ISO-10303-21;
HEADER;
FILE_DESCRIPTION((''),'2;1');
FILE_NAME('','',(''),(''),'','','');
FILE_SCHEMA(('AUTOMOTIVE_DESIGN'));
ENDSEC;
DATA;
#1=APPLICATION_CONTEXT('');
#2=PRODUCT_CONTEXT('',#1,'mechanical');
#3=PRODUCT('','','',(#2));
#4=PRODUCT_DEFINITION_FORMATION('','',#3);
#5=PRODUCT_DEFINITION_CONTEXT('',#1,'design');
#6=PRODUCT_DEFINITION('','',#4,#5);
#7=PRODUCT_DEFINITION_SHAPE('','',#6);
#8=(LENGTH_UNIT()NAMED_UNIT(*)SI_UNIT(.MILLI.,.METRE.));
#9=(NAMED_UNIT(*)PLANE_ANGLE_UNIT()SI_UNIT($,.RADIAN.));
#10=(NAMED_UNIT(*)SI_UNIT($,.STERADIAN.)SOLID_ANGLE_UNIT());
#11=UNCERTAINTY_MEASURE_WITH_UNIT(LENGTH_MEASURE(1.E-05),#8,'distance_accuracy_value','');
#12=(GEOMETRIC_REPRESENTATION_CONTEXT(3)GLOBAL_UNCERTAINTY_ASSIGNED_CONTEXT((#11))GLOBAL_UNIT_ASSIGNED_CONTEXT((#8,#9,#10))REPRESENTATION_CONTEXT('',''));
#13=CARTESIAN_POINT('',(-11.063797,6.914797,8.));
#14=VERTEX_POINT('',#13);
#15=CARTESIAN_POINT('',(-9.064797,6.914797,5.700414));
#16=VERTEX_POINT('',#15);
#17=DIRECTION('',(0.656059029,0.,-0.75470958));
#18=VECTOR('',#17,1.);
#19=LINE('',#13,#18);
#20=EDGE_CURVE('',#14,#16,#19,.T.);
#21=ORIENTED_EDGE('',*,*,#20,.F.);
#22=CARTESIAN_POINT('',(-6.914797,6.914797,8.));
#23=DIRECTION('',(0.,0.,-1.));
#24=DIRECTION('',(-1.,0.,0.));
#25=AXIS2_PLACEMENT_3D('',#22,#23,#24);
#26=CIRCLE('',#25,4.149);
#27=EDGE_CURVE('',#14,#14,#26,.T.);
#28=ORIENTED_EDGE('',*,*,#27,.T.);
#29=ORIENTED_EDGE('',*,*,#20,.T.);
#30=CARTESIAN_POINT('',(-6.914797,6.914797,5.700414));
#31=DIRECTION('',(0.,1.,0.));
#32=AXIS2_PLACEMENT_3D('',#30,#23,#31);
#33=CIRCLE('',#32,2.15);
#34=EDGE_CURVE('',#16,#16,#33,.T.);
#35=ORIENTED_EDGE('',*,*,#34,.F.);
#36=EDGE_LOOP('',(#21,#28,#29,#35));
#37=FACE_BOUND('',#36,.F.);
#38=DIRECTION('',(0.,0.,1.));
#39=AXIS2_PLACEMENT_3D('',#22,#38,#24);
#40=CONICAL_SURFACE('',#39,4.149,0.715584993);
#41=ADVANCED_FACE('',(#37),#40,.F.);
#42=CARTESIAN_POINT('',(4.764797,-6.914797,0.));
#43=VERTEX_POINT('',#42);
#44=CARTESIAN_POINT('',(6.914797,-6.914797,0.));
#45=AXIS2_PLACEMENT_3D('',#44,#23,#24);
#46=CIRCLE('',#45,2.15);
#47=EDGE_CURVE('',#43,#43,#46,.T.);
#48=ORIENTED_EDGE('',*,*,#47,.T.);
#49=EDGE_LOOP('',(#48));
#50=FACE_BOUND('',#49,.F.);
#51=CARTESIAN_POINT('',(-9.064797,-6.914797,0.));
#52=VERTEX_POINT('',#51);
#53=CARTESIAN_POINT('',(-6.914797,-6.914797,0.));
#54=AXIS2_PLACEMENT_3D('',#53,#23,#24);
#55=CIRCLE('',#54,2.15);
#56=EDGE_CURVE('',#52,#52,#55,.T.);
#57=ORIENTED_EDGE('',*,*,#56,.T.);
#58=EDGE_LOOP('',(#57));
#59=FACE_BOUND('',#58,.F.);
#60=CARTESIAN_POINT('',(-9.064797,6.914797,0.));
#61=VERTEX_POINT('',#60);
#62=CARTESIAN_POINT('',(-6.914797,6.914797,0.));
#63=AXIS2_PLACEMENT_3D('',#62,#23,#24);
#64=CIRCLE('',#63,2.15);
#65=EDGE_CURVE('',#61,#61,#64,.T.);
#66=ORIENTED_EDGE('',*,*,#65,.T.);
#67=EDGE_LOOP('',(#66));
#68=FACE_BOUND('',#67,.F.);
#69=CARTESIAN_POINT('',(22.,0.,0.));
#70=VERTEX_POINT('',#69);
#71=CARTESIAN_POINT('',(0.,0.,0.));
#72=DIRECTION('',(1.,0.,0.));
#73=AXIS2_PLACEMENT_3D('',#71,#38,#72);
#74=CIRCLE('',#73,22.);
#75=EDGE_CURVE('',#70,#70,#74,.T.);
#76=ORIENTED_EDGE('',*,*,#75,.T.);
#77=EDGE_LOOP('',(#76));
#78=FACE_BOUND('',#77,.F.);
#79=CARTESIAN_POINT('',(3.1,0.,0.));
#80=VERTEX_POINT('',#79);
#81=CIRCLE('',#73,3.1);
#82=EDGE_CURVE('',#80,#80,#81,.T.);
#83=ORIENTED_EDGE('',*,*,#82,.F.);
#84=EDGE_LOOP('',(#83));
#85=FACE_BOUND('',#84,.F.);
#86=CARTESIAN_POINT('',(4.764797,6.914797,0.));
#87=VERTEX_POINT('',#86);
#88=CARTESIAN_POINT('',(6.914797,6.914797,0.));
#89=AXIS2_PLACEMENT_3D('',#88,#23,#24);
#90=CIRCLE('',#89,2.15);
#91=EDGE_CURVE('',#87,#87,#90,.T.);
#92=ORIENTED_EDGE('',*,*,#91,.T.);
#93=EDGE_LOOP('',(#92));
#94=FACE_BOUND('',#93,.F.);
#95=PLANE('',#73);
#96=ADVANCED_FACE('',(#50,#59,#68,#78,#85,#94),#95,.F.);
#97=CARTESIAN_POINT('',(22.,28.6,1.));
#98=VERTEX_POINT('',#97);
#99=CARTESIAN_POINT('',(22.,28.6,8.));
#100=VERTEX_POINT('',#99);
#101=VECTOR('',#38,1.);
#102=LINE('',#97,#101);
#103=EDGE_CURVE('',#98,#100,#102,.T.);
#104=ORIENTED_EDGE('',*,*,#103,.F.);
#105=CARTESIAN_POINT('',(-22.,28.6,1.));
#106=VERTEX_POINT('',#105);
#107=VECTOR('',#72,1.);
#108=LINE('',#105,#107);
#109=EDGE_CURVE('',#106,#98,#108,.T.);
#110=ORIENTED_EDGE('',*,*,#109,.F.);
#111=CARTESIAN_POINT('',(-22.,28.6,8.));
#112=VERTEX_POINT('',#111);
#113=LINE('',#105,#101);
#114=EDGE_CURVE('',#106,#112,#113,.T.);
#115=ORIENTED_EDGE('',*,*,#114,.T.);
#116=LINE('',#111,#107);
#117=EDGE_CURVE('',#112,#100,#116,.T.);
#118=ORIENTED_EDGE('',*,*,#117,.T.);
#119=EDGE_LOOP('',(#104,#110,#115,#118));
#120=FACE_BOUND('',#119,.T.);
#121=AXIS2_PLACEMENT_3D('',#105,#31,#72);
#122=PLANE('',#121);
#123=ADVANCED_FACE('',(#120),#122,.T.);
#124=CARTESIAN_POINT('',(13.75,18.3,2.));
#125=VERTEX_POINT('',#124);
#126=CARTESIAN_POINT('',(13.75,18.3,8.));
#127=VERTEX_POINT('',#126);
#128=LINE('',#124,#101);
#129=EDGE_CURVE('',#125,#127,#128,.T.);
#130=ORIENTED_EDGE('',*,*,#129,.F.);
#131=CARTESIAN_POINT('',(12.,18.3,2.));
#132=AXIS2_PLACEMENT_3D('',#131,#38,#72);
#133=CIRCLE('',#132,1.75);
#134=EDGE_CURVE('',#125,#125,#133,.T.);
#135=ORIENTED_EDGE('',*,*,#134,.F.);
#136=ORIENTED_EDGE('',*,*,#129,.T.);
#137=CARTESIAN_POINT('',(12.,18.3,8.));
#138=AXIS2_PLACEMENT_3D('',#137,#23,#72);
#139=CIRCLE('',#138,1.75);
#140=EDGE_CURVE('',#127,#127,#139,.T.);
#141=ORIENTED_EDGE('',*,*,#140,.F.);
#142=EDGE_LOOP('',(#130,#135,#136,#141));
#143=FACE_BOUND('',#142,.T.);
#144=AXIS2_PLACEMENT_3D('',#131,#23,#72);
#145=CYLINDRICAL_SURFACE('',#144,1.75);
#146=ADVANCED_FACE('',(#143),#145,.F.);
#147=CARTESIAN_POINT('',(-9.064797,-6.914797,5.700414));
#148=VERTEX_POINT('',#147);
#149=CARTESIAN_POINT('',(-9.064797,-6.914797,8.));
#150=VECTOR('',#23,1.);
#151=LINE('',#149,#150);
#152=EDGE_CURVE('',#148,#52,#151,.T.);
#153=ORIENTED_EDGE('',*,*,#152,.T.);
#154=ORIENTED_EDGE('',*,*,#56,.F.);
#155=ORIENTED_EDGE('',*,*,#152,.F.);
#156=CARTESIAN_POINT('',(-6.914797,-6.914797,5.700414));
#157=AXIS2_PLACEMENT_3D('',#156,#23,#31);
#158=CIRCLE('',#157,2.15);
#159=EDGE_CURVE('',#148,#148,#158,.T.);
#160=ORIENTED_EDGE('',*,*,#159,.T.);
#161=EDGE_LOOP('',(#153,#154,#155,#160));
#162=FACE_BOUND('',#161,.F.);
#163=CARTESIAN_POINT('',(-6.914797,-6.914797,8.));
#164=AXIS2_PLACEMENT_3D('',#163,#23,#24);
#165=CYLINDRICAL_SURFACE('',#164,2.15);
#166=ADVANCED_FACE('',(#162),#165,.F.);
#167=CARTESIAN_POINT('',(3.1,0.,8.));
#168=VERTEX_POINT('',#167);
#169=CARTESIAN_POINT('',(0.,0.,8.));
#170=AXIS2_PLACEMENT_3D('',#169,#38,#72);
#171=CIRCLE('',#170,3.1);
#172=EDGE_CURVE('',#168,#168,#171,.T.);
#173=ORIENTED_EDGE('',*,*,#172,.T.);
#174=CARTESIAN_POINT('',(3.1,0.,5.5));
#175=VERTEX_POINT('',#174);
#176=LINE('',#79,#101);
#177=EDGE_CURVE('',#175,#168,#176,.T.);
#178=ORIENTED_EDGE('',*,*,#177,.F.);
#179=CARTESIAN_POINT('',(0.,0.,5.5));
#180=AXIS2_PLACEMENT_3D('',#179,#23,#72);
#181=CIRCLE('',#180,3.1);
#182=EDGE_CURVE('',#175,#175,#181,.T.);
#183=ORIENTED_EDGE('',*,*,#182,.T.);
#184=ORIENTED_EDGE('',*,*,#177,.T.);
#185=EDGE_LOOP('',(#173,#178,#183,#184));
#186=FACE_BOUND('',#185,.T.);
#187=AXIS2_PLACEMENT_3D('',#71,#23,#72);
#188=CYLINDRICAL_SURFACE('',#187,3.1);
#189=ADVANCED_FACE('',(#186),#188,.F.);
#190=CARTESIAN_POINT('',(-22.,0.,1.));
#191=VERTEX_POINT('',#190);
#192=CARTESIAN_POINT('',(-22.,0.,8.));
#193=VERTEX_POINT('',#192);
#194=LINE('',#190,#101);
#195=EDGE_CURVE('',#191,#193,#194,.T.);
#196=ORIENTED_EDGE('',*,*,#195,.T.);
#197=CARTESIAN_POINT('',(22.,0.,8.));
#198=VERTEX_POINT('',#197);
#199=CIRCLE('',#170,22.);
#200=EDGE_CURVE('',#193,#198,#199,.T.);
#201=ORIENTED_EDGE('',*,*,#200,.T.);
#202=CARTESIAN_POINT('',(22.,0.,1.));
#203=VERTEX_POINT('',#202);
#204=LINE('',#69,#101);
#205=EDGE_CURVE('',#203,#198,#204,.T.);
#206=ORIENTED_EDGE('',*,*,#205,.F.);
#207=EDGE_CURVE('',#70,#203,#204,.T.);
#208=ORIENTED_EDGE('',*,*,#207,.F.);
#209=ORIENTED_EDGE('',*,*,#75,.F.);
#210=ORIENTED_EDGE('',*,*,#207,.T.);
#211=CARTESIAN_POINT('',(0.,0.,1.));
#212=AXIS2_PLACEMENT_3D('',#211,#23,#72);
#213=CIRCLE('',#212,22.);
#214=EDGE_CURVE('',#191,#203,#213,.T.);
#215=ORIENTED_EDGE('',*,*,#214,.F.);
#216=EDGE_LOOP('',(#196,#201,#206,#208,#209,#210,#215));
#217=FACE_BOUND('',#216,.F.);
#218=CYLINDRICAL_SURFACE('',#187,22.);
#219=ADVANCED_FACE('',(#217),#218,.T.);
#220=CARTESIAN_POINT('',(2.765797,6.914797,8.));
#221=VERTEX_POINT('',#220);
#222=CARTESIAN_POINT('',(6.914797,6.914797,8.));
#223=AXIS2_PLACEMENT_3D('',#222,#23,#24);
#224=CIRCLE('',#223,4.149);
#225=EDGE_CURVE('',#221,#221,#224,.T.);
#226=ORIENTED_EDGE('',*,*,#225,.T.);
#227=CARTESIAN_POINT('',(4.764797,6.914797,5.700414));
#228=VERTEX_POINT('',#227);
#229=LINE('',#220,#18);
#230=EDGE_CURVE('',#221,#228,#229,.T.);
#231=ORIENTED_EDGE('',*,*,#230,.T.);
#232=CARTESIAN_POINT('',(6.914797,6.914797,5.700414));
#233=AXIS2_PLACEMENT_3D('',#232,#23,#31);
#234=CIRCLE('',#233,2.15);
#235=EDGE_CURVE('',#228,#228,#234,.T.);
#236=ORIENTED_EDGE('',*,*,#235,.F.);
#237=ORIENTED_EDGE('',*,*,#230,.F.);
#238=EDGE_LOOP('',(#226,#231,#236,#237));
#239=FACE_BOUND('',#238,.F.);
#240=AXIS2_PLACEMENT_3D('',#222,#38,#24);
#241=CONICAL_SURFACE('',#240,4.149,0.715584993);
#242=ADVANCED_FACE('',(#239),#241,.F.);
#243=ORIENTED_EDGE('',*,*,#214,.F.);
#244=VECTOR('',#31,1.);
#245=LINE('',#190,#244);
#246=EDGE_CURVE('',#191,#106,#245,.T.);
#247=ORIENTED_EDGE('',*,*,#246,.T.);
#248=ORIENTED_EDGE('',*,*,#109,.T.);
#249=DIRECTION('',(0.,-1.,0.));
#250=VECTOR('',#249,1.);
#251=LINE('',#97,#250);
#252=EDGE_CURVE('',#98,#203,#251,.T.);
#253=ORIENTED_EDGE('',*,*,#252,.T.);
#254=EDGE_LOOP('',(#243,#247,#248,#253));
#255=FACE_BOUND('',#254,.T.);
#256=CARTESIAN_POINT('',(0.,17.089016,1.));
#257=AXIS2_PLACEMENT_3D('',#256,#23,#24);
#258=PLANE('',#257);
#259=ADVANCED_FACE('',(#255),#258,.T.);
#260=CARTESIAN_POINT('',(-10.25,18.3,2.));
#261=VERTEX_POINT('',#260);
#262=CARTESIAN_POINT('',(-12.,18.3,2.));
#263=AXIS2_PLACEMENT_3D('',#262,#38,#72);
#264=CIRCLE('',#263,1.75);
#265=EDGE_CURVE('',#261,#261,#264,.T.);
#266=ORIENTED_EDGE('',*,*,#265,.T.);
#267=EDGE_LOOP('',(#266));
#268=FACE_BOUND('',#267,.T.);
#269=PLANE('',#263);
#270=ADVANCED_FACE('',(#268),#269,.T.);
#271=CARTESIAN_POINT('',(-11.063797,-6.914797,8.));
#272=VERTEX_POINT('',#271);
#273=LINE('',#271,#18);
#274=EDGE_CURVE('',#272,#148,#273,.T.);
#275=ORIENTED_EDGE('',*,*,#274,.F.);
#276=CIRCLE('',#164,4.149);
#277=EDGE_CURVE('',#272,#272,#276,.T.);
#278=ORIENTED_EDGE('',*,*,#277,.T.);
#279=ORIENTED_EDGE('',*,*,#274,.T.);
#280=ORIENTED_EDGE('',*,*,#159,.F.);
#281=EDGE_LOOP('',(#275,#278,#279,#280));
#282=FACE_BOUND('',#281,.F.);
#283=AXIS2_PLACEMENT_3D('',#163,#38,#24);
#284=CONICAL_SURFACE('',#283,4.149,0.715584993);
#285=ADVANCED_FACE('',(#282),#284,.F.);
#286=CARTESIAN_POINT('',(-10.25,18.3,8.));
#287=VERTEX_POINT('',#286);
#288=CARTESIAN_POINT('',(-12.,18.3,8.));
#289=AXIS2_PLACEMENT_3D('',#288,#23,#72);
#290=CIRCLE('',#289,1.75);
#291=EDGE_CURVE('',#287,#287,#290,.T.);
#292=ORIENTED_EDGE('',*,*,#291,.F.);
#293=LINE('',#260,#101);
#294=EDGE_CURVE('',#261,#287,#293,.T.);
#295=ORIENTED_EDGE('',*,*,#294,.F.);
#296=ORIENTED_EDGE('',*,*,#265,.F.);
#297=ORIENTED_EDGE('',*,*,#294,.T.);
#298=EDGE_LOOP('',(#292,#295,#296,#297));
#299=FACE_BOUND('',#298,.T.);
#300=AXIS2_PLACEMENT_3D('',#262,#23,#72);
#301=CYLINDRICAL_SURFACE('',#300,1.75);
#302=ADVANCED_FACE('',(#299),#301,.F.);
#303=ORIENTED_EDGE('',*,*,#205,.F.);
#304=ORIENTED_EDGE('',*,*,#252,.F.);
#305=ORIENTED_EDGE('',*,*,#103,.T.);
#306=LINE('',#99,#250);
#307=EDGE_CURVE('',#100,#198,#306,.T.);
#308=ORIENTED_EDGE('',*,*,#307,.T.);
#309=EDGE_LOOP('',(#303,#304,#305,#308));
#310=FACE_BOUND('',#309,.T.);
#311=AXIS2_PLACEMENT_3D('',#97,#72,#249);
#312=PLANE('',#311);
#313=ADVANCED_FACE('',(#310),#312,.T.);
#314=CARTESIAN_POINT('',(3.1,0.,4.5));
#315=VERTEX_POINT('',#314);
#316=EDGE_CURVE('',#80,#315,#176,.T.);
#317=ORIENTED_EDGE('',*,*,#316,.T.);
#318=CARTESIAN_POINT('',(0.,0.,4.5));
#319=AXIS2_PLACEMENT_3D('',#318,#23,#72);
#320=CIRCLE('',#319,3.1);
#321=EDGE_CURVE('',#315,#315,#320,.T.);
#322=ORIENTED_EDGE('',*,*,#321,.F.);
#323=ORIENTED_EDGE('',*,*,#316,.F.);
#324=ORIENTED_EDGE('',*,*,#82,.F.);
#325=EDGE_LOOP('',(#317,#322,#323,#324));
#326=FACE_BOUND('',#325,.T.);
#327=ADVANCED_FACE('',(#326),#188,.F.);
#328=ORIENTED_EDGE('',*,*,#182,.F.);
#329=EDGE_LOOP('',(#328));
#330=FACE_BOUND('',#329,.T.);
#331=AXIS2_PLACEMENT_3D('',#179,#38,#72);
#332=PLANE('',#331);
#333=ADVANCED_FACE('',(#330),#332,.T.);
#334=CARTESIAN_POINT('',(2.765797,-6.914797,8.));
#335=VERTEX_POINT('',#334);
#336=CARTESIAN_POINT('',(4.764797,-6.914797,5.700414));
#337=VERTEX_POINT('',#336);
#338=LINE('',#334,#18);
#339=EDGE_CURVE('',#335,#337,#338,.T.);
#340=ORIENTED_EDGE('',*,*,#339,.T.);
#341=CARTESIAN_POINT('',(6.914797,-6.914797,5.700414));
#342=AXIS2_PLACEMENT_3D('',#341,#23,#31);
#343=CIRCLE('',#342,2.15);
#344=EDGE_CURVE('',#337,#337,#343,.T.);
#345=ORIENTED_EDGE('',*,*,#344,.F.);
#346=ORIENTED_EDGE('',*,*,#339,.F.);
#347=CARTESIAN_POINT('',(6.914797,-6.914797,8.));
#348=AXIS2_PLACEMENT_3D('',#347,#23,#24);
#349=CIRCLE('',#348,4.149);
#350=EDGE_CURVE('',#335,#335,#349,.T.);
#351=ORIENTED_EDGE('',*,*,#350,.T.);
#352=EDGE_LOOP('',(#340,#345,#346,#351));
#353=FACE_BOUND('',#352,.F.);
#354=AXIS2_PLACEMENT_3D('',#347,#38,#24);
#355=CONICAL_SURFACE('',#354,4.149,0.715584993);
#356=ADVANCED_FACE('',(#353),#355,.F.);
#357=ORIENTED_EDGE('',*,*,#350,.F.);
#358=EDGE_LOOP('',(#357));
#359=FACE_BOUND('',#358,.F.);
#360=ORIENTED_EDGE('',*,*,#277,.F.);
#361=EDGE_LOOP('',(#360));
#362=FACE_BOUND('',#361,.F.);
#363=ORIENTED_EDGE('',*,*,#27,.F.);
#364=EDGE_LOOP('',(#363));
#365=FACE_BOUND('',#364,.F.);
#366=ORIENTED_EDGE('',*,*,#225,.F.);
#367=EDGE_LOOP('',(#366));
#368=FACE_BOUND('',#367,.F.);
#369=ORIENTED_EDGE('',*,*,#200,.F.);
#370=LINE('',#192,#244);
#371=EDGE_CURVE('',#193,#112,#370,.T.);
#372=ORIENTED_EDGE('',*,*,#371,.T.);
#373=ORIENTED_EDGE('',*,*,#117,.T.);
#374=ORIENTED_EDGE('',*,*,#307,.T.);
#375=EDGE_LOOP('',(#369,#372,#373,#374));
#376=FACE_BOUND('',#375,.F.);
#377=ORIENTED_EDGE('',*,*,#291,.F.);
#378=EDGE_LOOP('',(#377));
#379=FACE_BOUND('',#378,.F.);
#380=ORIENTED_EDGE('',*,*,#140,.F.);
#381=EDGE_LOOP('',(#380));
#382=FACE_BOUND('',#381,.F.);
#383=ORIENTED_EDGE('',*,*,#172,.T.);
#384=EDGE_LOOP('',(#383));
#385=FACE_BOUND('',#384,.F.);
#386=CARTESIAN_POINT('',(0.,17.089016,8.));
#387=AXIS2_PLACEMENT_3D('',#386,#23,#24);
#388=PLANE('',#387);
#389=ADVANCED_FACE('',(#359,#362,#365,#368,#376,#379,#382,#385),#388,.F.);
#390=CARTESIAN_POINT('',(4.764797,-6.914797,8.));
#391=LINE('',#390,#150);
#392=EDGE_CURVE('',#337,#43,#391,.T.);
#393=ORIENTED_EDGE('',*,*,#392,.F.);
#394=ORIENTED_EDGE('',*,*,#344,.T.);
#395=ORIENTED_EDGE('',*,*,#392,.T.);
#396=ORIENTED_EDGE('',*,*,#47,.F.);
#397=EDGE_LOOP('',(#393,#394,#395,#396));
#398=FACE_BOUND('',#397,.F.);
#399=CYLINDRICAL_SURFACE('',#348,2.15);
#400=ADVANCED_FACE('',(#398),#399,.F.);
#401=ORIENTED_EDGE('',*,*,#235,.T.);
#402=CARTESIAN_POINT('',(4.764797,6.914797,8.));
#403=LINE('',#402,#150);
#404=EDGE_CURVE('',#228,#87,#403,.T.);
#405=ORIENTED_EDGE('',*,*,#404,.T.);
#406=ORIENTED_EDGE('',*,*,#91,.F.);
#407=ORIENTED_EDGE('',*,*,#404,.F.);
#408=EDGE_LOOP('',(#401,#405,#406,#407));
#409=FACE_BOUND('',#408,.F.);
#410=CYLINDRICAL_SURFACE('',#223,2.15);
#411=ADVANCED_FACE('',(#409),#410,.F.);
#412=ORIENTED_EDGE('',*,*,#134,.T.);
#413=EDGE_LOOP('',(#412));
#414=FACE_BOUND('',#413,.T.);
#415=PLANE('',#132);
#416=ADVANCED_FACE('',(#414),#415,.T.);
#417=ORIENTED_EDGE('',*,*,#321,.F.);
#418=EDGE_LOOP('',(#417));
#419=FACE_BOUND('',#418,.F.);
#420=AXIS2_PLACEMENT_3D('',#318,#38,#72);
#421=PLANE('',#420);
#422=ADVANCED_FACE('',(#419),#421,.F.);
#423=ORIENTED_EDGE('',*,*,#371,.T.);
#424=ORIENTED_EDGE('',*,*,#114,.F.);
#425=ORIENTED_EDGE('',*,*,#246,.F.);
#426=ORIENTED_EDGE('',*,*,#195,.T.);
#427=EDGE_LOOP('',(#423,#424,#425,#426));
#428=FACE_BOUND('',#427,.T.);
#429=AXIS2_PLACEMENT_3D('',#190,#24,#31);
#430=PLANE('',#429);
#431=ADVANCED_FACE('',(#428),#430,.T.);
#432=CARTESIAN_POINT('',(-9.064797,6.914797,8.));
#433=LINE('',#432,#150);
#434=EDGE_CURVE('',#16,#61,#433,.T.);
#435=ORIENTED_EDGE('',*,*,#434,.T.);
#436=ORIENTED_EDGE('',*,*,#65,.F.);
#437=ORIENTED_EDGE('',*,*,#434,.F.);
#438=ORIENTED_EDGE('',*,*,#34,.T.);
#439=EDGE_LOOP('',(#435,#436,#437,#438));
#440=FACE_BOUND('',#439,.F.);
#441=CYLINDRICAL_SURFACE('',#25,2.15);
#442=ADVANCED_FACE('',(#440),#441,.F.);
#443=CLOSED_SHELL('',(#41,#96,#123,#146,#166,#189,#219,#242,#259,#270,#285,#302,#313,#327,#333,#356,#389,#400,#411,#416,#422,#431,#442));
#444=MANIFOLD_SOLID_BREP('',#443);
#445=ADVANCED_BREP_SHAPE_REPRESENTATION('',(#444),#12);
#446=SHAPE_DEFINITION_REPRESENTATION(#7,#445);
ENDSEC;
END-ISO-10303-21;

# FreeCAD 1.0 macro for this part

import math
import FreeCAD as App
import Part
import Sketcher

doc = App.newDocument("Part")
body = doc.addObject("PartDesign::Body", "Body")

sketch1 = doc.addObject("Sketcher::SketchObject", "Sketch")
body.addObject(sketch1)
sketch1.AttachmentSupport = (doc.XY_Plane, [""])
sketch1.MapMode = "FlatFace"
sketch1.addGeometry(Part.Circle(App.Vector(0, 0, 0), App.Vector(0, 0, 1), 22), False)
sketch1.addGeometry(Part.Circle(App.Vector(0, 0, 0), App.Vector(0, 0, 1), 3.1), False)
sketch1.addConstraint(Sketcher.Constraint("Coincident", 0, 3, -1, 1))
sketch1.addConstraint(Sketcher.Constraint("Coincident", 1, 3, -1, 1))
sketch1.addConstraint(Sketcher.Constraint("Diameter", 0, 44.0))
sketch1.addConstraint(Sketcher.Constraint("Diameter", 1, 6.2))
pad1 = doc.addObject("PartDesign::Pad", "Pad")
body.addObject(pad1)
pad1.Profile = sketch1
pad1.Length = 8

sketch2 = doc.addObject("Sketcher::SketchObject", "Sketch001")
body.addObject(sketch2)
sketch2.AttachmentSupport = (doc.XY_Plane, [""])
sketch2.MapMode = "FlatFace"
sketch2.AttachmentOffset = App.Placement(App.Vector(0, 0, 8), App.Rotation())
sketch2.addGeometry(Part.Circle(App.Vector(-6.914797, 6.914797, 0), App.Vector(0, 0, 1), 2.15), False)
sketch2.addGeometry(Part.Circle(App.Vector(6.914797, 6.914797, 0), App.Vector(0, 0, 1), 2.15), False)
sketch2.addGeometry(Part.Circle(App.Vector(6.914797, -6.914797, 0), App.Vector(0, 0, 1), 2.15), False)
sketch2.addGeometry(Part.Circle(App.Vector(-6.914797, -6.914797, 0), App.Vector(0, 0, 1), 2.15), False)
sketch2.addConstraint(Sketcher.Constraint("Equal", 0, 1))
sketch2.addConstraint(Sketcher.Constraint("Equal", 1, 2))
sketch2.addConstraint(Sketcher.Constraint("Equal", 2, 3))
sketch2.addConstraint(Sketcher.Constraint("Symmetric", 0, 3, 2, 3, -1, 1))
sketch2.addConstraint(Sketcher.Constraint("Symmetric", 1, 3, 3, 3, -1, 1))
sketch2.addConstraint(Sketcher.Constraint("Symmetric", 0, 3, 1, 3, -2))
sketch2.addConstraint(Sketcher.Constraint("Diameter", 0, 4.3))
sketch2.addConstraint(Sketcher.Constraint("DistanceX", 0, 3, -1, 1, 6.914797))
sketch2.addConstraint(Sketcher.Constraint("DistanceY", -1, 1, 0, 3, 6.914797))
doc.recompute()
hole = doc.addObject("PartDesign::Hole", "Hole")
body.addObject(hole)
hole.Profile = sketch2
hole.ThreadType = "None"
hole.Diameter = 4.3
hole.DepthType = "ThroughAll"
hole.HoleCutType = "Countersink"
hole.HoleCutDiameter = 8.298
hole.HoleCutCountersinkAngle = 82

sketch3 = doc.addObject("Sketcher::SketchObject", "Sketch002")
body.addObject(sketch3)
sketch3.AttachmentSupport = (doc.XY_Plane, [""])
sketch3.MapMode = "FlatFace"
sketch3.AttachmentOffset = App.Placement(App.Vector(0, 0, 4.5), App.Rotation())
sketch3.addGeometry(Part.Circle(App.Vector(0, 0, 0), App.Vector(0, 0, 1), 4), False)
sketch3.addConstraint(Sketcher.Constraint("Coincident", 0, 3, -1, 1))
sketch3.addConstraint(Sketcher.Constraint("Diameter", 0, 8.0))
pad2 = doc.addObject("PartDesign::Pad", "Pad001")
body.addObject(pad2)
pad2.Profile = sketch3
pad2.Length = 1

sketch4 = doc.addObject("Sketcher::SketchObject", "Sketch003")
body.addObject(sketch4)
sketch4.AttachmentSupport = (doc.XY_Plane, [""])
sketch4.MapMode = "FlatFace"
sketch4.AttachmentOffset = App.Placement(App.Vector(0, 0, 1), App.Rotation())
sketch4.addGeometry(Part.LineSegment(App.Vector(-22, 28.6, 0), App.Vector(-22, 0, 0)), False)
sketch4.addGeometry(Part.LineSegment(App.Vector(-22, 0, 0), App.Vector(-21, 0, 0)), False)
sketch4.addGeometry(Part.ArcOfCircle(Part.Circle(App.Vector(0, 0, 0), App.Vector(0, 0, 1), 21), math.radians(0), math.radians(180)), False)
sketch4.addGeometry(Part.LineSegment(App.Vector(21, 0, 0), App.Vector(22, 0, 0)), False)
sketch4.addGeometry(Part.LineSegment(App.Vector(22, 0, 0), App.Vector(22, 28.6, 0)), False)
sketch4.addGeometry(Part.LineSegment(App.Vector(22, 28.6, 0), App.Vector(-22, 28.6, 0)), False)
sketch4.addConstraint(Sketcher.Constraint("Coincident", 0, 2, 1, 1))
sketch4.addConstraint(Sketcher.Constraint("Coincident", 1, 2, 2, 2))
sketch4.addConstraint(Sketcher.Constraint("Coincident", 2, 1, 3, 1))
sketch4.addConstraint(Sketcher.Constraint("Coincident", 3, 2, 4, 1))
sketch4.addConstraint(Sketcher.Constraint("Coincident", 4, 2, 5, 1))
sketch4.addConstraint(Sketcher.Constraint("Coincident", 5, 2, 0, 1))
sketch4.addConstraint(Sketcher.Constraint("Vertical", 0))
sketch4.addConstraint(Sketcher.Constraint("Horizontal", 1))
sketch4.addConstraint(Sketcher.Constraint("Horizontal", 3))
sketch4.addConstraint(Sketcher.Constraint("Vertical", 4))
sketch4.addConstraint(Sketcher.Constraint("Horizontal", 5))
sketch4.addConstraint(Sketcher.Constraint("Coincident", 2, 3, -1, 1))
sketch4.addConstraint(Sketcher.Constraint("Symmetric", 0, 2, 3, 2, -1, 1))
sketch4.addConstraint(Sketcher.Constraint("PointOnObject", 0, 2, -1))
sketch4.addConstraint(Sketcher.Constraint("Radius", 2, 21.0))
sketch4.addConstraint(Sketcher.Constraint("DistanceX", 1, 1, 1, 2, 1.0))
sketch4.addConstraint(Sketcher.Constraint("DistanceY", 0, 2, 0, 1, 28.6))
pad3 = doc.addObject("PartDesign::Pad", "Pad002")
body.addObject(pad3)
pad3.Profile = sketch4
pad3.Length = 7

sketch5 = doc.addObject("Sketcher::SketchObject", "Sketch004")
body.addObject(sketch5)
sketch5.AttachmentSupport = (doc.XY_Plane, [""])
sketch5.MapMode = "FlatFace"
sketch5.AttachmentOffset = App.Placement(App.Vector(0, 0, 2), App.Rotation())
sketch5.addGeometry(Part.Circle(App.Vector(-12, 18.3, 0), App.Vector(0, 0, 1), 1.75), False)
sketch5.addGeometry(Part.Circle(App.Vector(12, 18.3, 0), App.Vector(0, 0, 1), 1.75), False)
sketch5.addConstraint(Sketcher.Constraint("Equal", 0, 1))
sketch5.addConstraint(Sketcher.Constraint("Symmetric", 0, 3, 1, 3, -2))
sketch5.addConstraint(Sketcher.Constraint("Diameter", 0, 3.5))
sketch5.addConstraint(Sketcher.Constraint("DistanceX", 0, 3, -1, 1, 12.0))
sketch5.addConstraint(Sketcher.Constraint("DistanceY", -1, 1, 0, 3, 18.3))
pocket1 = doc.addObject("PartDesign::Pocket", "Pocket")
body.addObject(pocket1)
pocket1.Profile = sketch5
pocket1.Type = "ThroughAll"
pocket1.Reversed = True

doc.recompute()
